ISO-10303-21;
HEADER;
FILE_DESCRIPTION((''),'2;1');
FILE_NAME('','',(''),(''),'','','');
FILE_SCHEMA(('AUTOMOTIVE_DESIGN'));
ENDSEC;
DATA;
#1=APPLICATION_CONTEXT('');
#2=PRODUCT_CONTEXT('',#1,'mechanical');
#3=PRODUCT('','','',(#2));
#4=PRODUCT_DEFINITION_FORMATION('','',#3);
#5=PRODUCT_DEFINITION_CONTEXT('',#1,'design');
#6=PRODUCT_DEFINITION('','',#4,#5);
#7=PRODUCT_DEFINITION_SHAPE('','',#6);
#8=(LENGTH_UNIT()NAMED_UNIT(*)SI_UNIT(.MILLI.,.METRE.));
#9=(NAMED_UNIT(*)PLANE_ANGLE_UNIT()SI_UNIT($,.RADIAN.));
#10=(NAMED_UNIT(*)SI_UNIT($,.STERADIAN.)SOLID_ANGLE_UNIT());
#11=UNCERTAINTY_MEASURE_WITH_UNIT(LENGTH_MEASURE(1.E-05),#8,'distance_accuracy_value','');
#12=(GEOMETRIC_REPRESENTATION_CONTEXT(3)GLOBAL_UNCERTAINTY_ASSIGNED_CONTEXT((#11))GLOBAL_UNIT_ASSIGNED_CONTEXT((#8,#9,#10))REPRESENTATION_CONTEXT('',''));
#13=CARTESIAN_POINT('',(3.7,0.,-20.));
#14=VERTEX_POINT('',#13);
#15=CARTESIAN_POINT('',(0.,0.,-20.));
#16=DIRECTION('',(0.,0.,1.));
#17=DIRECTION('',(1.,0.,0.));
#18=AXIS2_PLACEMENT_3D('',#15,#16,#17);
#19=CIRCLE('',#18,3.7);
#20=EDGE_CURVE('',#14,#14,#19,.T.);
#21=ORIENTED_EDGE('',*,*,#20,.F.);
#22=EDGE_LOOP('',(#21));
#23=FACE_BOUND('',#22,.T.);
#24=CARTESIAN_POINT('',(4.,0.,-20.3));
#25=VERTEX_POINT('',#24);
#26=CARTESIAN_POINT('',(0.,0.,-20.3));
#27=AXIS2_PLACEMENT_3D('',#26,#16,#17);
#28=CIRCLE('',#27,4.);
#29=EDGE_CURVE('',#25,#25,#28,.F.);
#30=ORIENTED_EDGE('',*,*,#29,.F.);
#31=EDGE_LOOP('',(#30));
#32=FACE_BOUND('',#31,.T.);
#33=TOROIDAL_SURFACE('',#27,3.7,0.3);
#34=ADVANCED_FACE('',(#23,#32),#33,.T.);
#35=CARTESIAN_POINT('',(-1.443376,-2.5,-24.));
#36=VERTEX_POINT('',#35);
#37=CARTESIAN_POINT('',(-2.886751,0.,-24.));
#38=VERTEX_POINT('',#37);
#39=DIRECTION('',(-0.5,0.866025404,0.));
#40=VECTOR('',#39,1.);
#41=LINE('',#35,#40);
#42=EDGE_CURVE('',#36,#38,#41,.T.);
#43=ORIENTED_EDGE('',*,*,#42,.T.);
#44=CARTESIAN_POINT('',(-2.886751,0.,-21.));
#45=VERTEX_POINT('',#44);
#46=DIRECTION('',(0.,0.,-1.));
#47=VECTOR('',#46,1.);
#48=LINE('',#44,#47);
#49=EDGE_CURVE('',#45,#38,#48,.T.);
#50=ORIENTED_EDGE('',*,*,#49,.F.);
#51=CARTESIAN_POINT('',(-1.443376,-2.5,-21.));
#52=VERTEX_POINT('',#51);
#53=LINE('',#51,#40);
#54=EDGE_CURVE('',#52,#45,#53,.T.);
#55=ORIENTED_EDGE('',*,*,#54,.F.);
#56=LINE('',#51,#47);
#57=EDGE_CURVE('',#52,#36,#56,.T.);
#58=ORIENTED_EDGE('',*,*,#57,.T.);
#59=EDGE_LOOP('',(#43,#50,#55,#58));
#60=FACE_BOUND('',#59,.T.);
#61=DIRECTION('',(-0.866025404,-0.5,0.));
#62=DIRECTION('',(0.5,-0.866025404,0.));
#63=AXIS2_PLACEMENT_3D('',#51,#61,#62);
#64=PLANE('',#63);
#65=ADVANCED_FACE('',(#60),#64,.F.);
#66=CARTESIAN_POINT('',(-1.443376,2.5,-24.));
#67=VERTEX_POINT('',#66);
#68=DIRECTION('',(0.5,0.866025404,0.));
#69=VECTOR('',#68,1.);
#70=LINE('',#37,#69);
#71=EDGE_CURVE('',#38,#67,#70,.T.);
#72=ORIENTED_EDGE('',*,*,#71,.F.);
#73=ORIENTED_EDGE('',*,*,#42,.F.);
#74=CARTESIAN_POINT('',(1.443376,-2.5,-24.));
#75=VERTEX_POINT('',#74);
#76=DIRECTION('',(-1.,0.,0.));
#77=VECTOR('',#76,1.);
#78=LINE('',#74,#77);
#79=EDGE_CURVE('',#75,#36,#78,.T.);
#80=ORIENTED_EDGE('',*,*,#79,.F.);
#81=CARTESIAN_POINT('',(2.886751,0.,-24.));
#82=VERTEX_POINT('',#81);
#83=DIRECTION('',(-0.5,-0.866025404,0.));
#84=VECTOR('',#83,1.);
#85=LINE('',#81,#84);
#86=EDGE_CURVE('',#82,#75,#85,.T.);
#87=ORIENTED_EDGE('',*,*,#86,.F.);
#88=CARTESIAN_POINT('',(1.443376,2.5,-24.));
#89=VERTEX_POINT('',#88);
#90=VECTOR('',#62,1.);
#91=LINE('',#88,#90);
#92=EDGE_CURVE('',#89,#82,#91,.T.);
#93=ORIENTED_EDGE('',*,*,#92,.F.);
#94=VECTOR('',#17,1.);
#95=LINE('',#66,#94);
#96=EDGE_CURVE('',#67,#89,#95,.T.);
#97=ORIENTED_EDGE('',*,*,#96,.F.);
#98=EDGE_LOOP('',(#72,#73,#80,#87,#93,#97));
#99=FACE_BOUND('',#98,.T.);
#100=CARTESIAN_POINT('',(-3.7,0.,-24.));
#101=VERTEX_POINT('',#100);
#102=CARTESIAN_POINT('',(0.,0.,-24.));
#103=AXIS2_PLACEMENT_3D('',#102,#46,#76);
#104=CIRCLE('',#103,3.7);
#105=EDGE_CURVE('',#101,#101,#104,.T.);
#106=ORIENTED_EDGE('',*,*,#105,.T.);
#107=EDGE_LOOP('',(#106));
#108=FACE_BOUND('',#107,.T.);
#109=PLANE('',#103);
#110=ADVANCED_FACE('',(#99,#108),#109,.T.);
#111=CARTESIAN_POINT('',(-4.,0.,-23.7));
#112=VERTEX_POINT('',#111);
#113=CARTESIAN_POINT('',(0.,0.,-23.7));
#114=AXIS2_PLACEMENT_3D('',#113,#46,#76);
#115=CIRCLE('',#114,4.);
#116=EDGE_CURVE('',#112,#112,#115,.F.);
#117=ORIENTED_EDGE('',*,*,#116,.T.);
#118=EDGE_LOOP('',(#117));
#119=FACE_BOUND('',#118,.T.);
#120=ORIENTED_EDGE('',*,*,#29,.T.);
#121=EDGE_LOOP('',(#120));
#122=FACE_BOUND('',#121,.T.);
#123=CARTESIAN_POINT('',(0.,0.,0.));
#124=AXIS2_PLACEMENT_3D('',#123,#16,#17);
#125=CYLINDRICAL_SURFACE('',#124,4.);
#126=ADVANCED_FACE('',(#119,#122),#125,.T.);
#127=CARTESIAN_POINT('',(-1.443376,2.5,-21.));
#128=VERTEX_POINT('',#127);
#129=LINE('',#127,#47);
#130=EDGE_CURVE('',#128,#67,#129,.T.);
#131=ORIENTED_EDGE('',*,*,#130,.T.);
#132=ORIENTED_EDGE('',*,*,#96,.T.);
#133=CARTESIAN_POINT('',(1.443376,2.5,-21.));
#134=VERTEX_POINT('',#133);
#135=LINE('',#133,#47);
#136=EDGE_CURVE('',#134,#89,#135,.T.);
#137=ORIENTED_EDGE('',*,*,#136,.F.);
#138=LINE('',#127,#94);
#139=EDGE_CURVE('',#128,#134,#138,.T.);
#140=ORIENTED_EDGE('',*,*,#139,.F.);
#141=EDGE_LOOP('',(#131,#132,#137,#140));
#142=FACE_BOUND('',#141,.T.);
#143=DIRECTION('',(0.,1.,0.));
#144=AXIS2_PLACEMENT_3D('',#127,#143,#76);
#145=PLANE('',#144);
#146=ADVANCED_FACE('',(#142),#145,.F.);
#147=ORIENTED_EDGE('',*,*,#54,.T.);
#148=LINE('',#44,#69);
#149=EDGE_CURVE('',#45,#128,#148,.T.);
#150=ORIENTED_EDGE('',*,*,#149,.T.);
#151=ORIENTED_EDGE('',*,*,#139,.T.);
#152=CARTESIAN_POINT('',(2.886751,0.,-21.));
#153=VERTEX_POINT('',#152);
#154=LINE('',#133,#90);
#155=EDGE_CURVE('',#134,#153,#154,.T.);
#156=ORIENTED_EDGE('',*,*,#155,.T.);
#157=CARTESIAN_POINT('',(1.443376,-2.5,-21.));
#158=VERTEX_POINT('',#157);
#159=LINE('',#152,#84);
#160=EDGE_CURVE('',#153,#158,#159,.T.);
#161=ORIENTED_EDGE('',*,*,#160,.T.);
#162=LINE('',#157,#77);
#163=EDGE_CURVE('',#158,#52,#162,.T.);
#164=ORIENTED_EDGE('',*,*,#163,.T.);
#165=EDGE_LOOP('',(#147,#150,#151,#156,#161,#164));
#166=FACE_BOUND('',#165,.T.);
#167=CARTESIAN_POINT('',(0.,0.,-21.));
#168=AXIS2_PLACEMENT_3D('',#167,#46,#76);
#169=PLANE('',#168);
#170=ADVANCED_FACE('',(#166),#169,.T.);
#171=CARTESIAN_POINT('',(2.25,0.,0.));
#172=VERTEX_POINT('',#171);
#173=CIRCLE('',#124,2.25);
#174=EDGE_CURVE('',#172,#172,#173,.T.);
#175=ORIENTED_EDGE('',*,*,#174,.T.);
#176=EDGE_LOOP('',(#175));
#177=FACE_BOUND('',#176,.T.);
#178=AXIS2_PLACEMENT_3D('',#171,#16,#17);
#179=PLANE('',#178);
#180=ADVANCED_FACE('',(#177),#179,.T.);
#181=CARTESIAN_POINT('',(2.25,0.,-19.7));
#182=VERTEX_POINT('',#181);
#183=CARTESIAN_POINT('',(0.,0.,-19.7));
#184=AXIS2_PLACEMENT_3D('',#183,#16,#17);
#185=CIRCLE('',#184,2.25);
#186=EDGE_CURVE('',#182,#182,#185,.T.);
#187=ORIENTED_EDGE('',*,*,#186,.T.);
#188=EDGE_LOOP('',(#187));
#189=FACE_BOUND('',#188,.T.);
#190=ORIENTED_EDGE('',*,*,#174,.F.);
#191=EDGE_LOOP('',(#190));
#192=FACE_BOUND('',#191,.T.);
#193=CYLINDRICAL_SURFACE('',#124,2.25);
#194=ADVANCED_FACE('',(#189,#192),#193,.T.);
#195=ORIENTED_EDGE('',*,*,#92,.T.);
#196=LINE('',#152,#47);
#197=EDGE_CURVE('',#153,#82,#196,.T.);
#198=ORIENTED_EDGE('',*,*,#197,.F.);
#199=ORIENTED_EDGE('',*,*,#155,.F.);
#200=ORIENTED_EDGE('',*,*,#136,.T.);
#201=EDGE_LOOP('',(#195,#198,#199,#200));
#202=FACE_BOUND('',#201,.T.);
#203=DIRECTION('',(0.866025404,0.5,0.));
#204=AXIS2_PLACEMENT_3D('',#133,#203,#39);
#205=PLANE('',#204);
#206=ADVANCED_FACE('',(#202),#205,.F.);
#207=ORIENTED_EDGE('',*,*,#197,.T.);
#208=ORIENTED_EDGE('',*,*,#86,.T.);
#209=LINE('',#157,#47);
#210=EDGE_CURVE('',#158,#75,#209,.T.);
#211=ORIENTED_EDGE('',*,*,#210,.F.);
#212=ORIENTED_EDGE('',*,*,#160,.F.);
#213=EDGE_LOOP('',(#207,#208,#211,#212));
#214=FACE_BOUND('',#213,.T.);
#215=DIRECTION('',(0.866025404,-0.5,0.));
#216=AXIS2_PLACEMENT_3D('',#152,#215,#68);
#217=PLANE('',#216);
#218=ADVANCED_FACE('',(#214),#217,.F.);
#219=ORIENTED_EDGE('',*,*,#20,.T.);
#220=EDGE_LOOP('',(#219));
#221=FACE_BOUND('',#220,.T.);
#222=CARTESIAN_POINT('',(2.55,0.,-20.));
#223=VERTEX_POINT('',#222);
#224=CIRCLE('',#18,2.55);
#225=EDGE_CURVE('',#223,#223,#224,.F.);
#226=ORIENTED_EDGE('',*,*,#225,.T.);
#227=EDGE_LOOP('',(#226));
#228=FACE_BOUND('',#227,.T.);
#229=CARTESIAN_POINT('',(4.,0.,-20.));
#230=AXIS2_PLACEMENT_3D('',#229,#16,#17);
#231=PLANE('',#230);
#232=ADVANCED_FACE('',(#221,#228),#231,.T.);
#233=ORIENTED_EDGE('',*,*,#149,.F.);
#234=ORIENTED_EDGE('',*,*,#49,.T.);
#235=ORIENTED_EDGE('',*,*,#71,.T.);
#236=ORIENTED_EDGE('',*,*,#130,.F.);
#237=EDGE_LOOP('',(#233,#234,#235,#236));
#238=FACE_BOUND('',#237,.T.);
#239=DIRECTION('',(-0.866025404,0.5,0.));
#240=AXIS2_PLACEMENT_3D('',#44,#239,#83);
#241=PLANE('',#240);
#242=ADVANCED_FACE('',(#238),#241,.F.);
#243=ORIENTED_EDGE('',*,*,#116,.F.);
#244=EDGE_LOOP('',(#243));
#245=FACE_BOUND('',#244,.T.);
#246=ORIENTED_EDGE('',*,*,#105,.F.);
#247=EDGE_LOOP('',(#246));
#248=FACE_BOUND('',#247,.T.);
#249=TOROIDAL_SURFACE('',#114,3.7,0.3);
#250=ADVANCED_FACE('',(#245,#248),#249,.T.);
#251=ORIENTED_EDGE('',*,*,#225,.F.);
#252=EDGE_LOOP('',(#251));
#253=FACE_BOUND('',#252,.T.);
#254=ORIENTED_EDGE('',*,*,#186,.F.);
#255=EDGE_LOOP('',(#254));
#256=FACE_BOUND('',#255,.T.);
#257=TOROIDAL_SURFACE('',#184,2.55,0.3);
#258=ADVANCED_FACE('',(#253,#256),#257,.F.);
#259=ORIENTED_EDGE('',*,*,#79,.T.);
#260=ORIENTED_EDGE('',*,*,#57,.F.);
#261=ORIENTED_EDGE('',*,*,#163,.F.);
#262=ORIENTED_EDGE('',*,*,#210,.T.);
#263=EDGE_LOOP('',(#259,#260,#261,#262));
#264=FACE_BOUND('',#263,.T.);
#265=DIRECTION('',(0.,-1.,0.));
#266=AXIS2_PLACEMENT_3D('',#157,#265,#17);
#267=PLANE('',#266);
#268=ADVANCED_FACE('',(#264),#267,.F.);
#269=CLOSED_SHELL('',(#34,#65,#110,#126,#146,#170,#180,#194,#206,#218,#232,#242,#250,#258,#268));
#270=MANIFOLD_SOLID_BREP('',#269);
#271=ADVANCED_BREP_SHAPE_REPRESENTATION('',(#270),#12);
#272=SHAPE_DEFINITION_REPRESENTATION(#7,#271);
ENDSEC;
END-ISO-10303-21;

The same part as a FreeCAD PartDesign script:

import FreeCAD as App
import Part
import Sketcher
from FreeCAD import Vector
Q = App.Units.Quantity


def edges_at(feature, points):
    """Names of the edges that pass closest to the given points."""
    edges = feature.Shape.Edges
    near = lambda p: min(range(len(edges)), key=lambda i: edges[i].distToShape(Part.Vertex(*p))[0])
    return sorted({f"Edge{near(p) + 1}" for p in points})


def add_polygon(sketch, points):
    """Adds a closed chain of lines whose ends are joined by coincident constraints."""
    first, n = sketch.GeometryCount, len(points)
    for a, b in zip(points, points[1:] + points[:1]):
        sketch.addGeometry(Part.LineSegment(App.Vector(*a, 0), App.Vector(*b, 0)), False)
    for i in range(n):
        sketch.addConstraint(Sketcher.Constraint("Coincident", first + i, 2, first + (i + 1) % n, 1))

doc = App.newDocument("Part")
body = doc.addObject("PartDesign::Body", "Body")

sketch1 = body.newObject("Sketcher::SketchObject", "Sketch")
sketch1.AttachmentSupport = (doc.getObject("XZ_Plane"), [""])
sketch1.MapMode = "FlatFace"
add_polygon(sketch1, [(-24, 0), (0, 0), (0, -2.25), (-20, -2.25), (-20, -4), (-24, -4)])
sketch1.addConstraint([
    Sketcher.Constraint("Horizontal", 0),
    Sketcher.Constraint("Vertical", 1),
    Sketcher.Constraint("Horizontal", 2),
    Sketcher.Constraint("Vertical", 3),
    Sketcher.Constraint("Horizontal", 4),
    Sketcher.Constraint("Vertical", 5),
    Sketcher.Constraint("Coincident", 0, 2, -1, 1),
    Sketcher.Constraint("Equal", 4, 5),
    Sketcher.Constraint("DistanceX", 0, 1, 0, 2, Q("24 mm")),
    Sketcher.Constraint("DistanceX", 2, 2, 2, 1, Q("20 mm")),
    Sketcher.Constraint("DistanceY", 1, 2, 1, 1, Q("2.25 mm")),
])
revolution = body.newObject("PartDesign::Revolution", "Revolution")
revolution.Profile = sketch1
revolution.ReferenceAxis = (sketch1, ["H_Axis"])
revolution.Angle = 360

sketch2 = body.newObject("Sketcher::SketchObject", "Sketch001")
sketch2.AttachmentSupport = (doc.getObject("YZ_Plane"), [""])
sketch2.MapMode = "FlatFace"
sketch2.AttachmentOffset = App.Placement(Vector(0, 0, -24), App.Rotation())
add_polygon(sketch2, [(0, -2.886751), (-2.5, -1.443376), (-2.5, 1.443376), (0, 2.886751), (2.5, 1.443376), (2.5, -1.443376)])
sketch2.addConstraint([
    Sketcher.Constraint("Vertical", 1),
    Sketcher.Constraint("Vertical", 4),
    Sketcher.Constraint("Symmetric", 0, 2, 3, 2, -1, 1),
    Sketcher.Constraint("Symmetric", 2, 2, 5, 2, -1, 1),
    Sketcher.Constraint("PointOnObject", 2, 2, -2),
    Sketcher.Constraint("Parallel", 2, 5),
    Sketcher.Constraint("Horizontal", 1, 2, 3, 2),
    Sketcher.Constraint("Angle", 0, Q("150 deg")),
    Sketcher.Constraint("DistanceX", 1, 2, 3, 2, Q("5 mm")),
    Sketcher.Constraint("DistanceY", 1, 1, 1, 2, Q("2.886751 mm")),
])
pocket1 = body.newObject("PartDesign::Pocket", "Pocket")
pocket1.Profile = sketch2
pocket1.Length = 3
pocket1.Reversed = True
doc.recompute()

fillet = body.newObject("PartDesign::Fillet", "Fillet")
fillet.Base = (pocket1, edges_at(pocket1, [(-20, 0, 2.25), (-20, 0, 4), (-24, 0, 4)]))
fillet.Radius = 0.3
body2 = doc.addObject("PartDesign::Body", "Body001")
doc.recompute()

body.Placement = App.Placement(Vector(0, 0, 0), App.Rotation(Vector(0, -1, 0), 90))
boolean = body2.newObject("PartDesign::Boolean", "Boolean")
boolean.Type = "Fuse"
boolean.addObjects([body])

doc.recompute()
